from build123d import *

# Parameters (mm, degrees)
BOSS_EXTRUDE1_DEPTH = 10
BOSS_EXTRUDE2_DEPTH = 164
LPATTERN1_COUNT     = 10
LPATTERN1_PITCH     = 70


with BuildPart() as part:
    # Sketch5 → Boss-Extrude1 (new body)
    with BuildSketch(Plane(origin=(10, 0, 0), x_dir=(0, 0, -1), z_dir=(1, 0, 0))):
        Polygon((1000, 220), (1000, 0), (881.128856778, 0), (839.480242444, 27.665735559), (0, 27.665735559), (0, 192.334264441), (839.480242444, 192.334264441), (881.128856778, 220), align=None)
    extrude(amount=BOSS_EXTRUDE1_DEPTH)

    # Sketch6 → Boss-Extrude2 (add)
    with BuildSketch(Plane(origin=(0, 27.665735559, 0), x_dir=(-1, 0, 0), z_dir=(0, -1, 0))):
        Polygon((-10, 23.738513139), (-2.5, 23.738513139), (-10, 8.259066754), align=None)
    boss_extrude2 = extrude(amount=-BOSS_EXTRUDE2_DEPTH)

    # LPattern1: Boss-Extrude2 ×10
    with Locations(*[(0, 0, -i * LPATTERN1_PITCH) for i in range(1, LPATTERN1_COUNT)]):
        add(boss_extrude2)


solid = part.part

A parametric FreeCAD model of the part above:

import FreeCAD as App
import Part
import Sketcher
Q = App.Units.Quantity


def add_polygon(sketch, points):
    """Adds a closed chain of lines whose ends are joined by coincident constraints."""
    first, n = sketch.GeometryCount, len(points)
    for a, b in zip(points, points[1:] + points[:1]):
        sketch.addGeometry(Part.LineSegment(App.Vector(*a, 0), App.Vector(*b, 0)), False)
    for i in range(n):
        sketch.addConstraint(Sketcher.Constraint("Coincident", first + i, 2, first + (i + 1) % n, 1))

doc = App.newDocument("Part")
body = doc.addObject("PartDesign::Body", "Body")

sketch1 = body.newObject("Sketcher::SketchObject", "Sketch")
sketch1.AttachmentSupport = (doc.getObject("YZ_Plane"), [""])
sketch1.MapMode = "FlatFace"
sketch1.AttachmentOffset = App.Placement(App.Vector(0, 0, 10), App.Rotation())
add_polygon(sketch1, [(0, -1000), (220, -1000), (220, -881), (192, -839), (192, 0), (28, 0), (28, -839), (0, -881)])
sketch1.addConstraint([
    Sketcher.Constraint("Horizontal", 0),
    Sketcher.Constraint("Vertical", 1),
    Sketcher.Constraint("Vertical", 3),
    Sketcher.Constraint("Horizontal", 4),
    Sketcher.Constraint("Vertical", 5),
    Sketcher.Constraint("Vertical", 7),
    Sketcher.Constraint("PointOnObject", 3, 2, -1),
    Sketcher.Constraint("PointOnObject", 6, 2, -2),
    Sketcher.Constraint("Horizontal", 2, 2, 5, 2),
    Sketcher.Constraint("Horizontal", 1, 2, 6, 2),
    Sketcher.Constraint("Equal", 2, 6),
    Sketcher.Constraint("DistanceX", 0, 1, 0, 2, Q("220 mm")),
    Sketcher.Constraint("Distance", 2, Q("50 mm")),
    Sketcher.Constraint("DistanceY", 0, 2, -1, 1, Q("1000 mm")),
    Sketcher.Constraint("DistanceX", 4, 2, 4, 1, Q("164.668529 mm")),
    Sketcher.Constraint("DistanceY", 1, 1, 1, 2, Q("118.871143 mm")),
])
pad1 = body.newObject("PartDesign::Pad", "Pad")
pad1.Profile = sketch1
pad1.Length = 10

sketch2 = body.newObject("Sketcher::SketchObject", "Sketch001")
sketch2.AttachmentSupport = (doc.getObject("XZ_Plane"), [""])
sketch2.MapMode = "FlatFace"
sketch2.AttachmentOffset = App.Placement(App.Vector(0, 0, -27.665736), App.Rotation())
add_polygon(sketch2, [(2, -24), (10, -24), (10, -8)])
sketch2.addConstraint([
    Sketcher.Constraint("Horizontal", 0),
    Sketcher.Constraint("Vertical", 1),
    Sketcher.Constraint("DistanceX", 0, 1, 0, 2, Q("7.5 mm")),
    Sketcher.Constraint("DistanceX", -1, 1, 0, 2, Q("10 mm")),
    Sketcher.Constraint("DistanceY", 1, 1, 1, 2, Q("15.479446 mm")),
    Sketcher.Constraint("DistanceY", 0, 2, -1, 1, Q("23.738513 mm")),
])
pad2 = body.newObject("PartDesign::Pad", "Pad001")
pad2.Profile = sketch2
pad2.Length = 164
pad2.Reversed = True
doc.recompute()

linearpattern = body.newObject("PartDesign::LinearPattern", "LinearPattern")
linearpattern.Originals = [pad2]
linearpattern.Direction = (doc.getObject("Z_Axis"), [""])
linearpattern.Mode = "offset"
linearpattern.Offset = 70
linearpattern.Occurrences = 10
linearpattern.Reversed = True
body.Tip = linearpattern

doc.recompute()
